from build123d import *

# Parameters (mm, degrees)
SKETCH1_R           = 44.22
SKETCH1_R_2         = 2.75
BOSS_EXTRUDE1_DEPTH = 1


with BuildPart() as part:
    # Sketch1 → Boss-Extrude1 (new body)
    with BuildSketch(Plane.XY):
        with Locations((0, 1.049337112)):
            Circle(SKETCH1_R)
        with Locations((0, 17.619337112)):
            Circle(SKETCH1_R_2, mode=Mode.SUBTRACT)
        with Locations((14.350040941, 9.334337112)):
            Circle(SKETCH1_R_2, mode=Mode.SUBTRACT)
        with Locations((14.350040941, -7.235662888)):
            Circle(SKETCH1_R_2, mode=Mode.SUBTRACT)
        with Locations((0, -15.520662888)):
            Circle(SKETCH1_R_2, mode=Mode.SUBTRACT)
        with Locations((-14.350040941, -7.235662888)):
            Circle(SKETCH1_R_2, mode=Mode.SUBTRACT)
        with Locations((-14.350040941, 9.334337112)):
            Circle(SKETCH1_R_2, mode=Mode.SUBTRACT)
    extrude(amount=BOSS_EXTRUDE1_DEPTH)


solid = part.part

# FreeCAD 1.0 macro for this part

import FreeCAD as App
import Part
import Sketcher
from FreeCAD import Vector
Q = App.Units.Quantity

doc = App.newDocument("Part")
params = doc.addObject("Spreadsheet::Sheet", "Params")
for row, (alias, value) in enumerate([
    ("sketch1_diameter", "5.5 mm"),
    ("sketch1_diameter2", "88.44 mm"),
    ("pad1_length", "1 mm"),
], start=1):
    params.set(f"A{row}", alias)
    params.set(f"B{row}", "=" + value)
    params.setAlias(f"B{row}", alias)

body = doc.addObject("PartDesign::Body", "Body")

# Sketch on XY plane
sketch1 = doc.addObject("Sketcher::SketchObject", "Sketch")
body.addObject(sketch1)
sketch1.AttachmentSupport = (doc.XY_Plane, [""])
sketch1.MapMode = "FlatFace"
sketch1.addGeometry([
    Part.Circle(Vector(0, 1.049337, 0), Vector(0, 0, 1), 44.22),  # 0
    Part.Circle(Vector(-14.350041, -7.235663, 0), Vector(0, 0, 1), 2.75),  # 1
    Part.Circle(Vector(0, -15.520663, 0), Vector(0, 0, 1), 2.75),  # 2
    Part.Circle(Vector(14.350041, -7.235663, 0), Vector(0, 0, 1), 2.75),  # 3
    Part.Circle(Vector(-14.350041, 9.334337, 0), Vector(0, 0, 1), 2.75),  # 4
    Part.Circle(Vector(14.350041, 9.334337, 0), Vector(0, 0, 1), 2.75),  # 5
    Part.Circle(Vector(0, 17.619337, 0), Vector(0, 0, 1), 2.75),  # 6
], False)
sketch1.addConstraint([
    Sketcher.Constraint("Equal", 1, 2),
    Sketcher.Constraint("Equal", 2, 3),
    Sketcher.Constraint("Equal", 3, 4),
    Sketcher.Constraint("Equal", 4, 5),
    Sketcher.Constraint("Equal", 5, 6),
    Sketcher.Constraint("Symmetric", 1, 3, 3, 3, -2),
    Sketcher.Constraint("Symmetric", 4, 3, 5, 3, -2),
    Sketcher.Constraint("PointOnObject", 0, 3, -2),
    Sketcher.Constraint("PointOnObject", 2, 3, -2),
    Sketcher.Constraint("PointOnObject", 6, 3, -2),
    Sketcher.Constraint("Vertical", 1, 3, 4, 3),
    Sketcher.Constraint("Diameter", 1, Q("5.5 mm")),
    Sketcher.Constraint("Diameter", 0, Q("88.44 mm")),
    Sketcher.Constraint("DistanceY", 2, 3, 0, 3, Q("16.57 mm")),
    Sketcher.Constraint("DistanceY", 1, 3, 4, 3, Q("16.57 mm")),
    Sketcher.Constraint("DistanceY", 0, 3, 6, 3, Q("16.57 mm")),
    Sketcher.Constraint("DistanceY", 1, 3, 0, 3, Q("8.285 mm")),
    Sketcher.Constraint("DistanceX", 1, 3, -1, 1, Q("14.350041 mm")),
    Sketcher.Constraint("DistanceY", -1, 1, 0, 3, Q("1.049337 mm")),
])
sketch1.setExpression("Constraints[11]", "Params.sketch1_diameter")
sketch1.setExpression("Constraints[12]", "Params.sketch1_diameter2")
pad1 = doc.addObject("PartDesign::Pad", "Pad")
body.addObject(pad1)
pad1.Profile = sketch1
pad1.setExpression("Length", "Params.pad1_length")

doc.recompute()
